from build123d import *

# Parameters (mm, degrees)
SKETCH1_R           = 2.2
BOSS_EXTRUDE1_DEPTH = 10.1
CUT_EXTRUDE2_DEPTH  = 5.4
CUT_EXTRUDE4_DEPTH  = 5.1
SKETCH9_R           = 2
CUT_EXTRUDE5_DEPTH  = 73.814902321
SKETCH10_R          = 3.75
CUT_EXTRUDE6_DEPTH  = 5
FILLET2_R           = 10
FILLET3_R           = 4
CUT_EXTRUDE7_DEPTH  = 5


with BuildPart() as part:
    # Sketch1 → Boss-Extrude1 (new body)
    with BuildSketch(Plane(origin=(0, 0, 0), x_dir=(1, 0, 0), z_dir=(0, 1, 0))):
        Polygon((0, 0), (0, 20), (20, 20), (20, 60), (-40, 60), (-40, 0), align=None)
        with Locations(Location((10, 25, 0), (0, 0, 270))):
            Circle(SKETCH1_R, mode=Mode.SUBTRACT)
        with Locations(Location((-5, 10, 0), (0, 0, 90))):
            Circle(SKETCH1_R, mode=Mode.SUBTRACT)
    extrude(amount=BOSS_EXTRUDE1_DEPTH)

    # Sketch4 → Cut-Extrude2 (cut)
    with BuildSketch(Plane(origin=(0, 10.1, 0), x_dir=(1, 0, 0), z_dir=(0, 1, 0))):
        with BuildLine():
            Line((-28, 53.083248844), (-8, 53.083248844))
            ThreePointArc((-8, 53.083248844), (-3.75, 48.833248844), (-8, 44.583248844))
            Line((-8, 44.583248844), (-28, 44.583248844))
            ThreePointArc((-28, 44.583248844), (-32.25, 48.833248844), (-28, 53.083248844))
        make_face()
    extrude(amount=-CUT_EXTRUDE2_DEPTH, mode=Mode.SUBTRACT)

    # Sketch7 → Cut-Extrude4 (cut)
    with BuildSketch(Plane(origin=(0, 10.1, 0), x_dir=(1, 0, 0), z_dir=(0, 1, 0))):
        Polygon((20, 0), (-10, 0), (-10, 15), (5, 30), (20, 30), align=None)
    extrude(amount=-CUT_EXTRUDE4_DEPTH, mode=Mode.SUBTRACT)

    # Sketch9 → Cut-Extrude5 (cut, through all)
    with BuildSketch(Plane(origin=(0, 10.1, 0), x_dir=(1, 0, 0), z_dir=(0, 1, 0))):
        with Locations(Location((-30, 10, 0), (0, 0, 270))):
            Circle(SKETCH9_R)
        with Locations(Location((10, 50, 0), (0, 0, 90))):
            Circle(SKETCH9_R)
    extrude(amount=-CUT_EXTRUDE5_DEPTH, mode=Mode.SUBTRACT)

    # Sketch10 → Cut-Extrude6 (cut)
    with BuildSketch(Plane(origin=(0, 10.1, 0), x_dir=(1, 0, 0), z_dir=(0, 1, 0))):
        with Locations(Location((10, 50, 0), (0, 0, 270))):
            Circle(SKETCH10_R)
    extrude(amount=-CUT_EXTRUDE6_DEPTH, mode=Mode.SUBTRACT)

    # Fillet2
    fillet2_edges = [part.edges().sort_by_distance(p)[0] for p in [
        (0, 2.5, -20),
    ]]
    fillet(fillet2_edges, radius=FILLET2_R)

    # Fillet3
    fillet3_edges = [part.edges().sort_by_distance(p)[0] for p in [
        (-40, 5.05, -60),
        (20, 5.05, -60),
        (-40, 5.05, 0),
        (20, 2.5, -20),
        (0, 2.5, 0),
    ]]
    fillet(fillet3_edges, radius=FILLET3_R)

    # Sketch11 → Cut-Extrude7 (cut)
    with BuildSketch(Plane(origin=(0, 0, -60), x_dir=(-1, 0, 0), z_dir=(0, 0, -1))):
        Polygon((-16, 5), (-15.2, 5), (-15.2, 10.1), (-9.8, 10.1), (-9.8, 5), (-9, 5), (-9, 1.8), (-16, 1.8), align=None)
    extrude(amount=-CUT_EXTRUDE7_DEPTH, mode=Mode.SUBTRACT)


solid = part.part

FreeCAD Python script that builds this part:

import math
import FreeCAD as App
import Part
import Sketcher
from FreeCAD import Vector
Q = App.Units.Quantity


def edges_at(feature, points):
    """Names of the edges that pass closest to the given points."""
    edges = feature.Shape.Edges
    near = lambda p: min(range(len(edges)), key=lambda i: edges[i].distToShape(Part.Vertex(*p))[0])
    return sorted({f"Edge{near(p) + 1}" for p in points})


def add_polygon(sketch, points):
    """Adds a closed chain of lines whose ends are joined by coincident constraints."""
    first, n = sketch.GeometryCount, len(points)
    for a, b in zip(points, points[1:] + points[:1]):
        sketch.addGeometry(Part.LineSegment(App.Vector(*a, 0), App.Vector(*b, 0)), False)
    for i in range(n):
        sketch.addConstraint(Sketcher.Constraint("Coincident", first + i, 2, first + (i + 1) % n, 1))

doc = App.newDocument("Part")
body = doc.addObject("PartDesign::Body", "Body")

sketch1 = doc.addObject("Sketcher::SketchObject", "Sketch")
body.addObject(sketch1)
sketch1.AttachmentSupport = (doc.XZ_Plane, [""])
sketch1.MapMode = "FlatFace"
add_polygon(sketch1, [(0, 0), (0, -20), (20, -20), (20, -60), (-40, -60), (-40, 0)])
sketch1.addGeometry(Part.Circle(Vector(-5, -10, 0), Vector(0, 0, 1), 2.2), False)
sketch1.addGeometry(Part.Circle(Vector(10, -25, 0), Vector(0, 0, 1), 2.2), False)
sketch1.addConstraint(Sketcher.Constraint("Vertical", 0))
sketch1.addConstraint(Sketcher.Constraint("Horizontal", 1))
sketch1.addConstraint(Sketcher.Constraint("Vertical", 2))
sketch1.addConstraint(Sketcher.Constraint("Horizontal", 3))
sketch1.addConstraint(Sketcher.Constraint("Vertical", 4))
sketch1.addConstraint(Sketcher.Constraint("Horizontal", 5))
sketch1.addConstraint(Sketcher.Constraint("Coincident", 5, 2, -1, 1))
sketch1.addConstraint(Sketcher.Constraint("Equal", 6, 7))
sketch1.addConstraint(Sketcher.Constraint("Equal", 1, 0))
sketch1.addConstraint(Sketcher.Constraint("Equal", 5, 2))
sketch1.addConstraint(Sketcher.Constraint("Diameter", 6, Q("4.4 mm")))
sketch1.addConstraint(Sketcher.Constraint("DistanceX", 1, 1, 1, 2, Q("20 mm")))
sketch1.addConstraint(Sketcher.Constraint("DistanceX", 3, 2, 3, 1, Q("60 mm")))
sketch1.addConstraint(Sketcher.Constraint("DistanceX", 6, 3, -1, 1, Q("5 mm")))
sketch1.addConstraint(Sketcher.Constraint("DistanceY", 6, 3, -1, 1, Q("10 mm")))
sketch1.addConstraint(Sketcher.Constraint("DistanceX", -1, 1, 7, 3, Q("10 mm")))
sketch1.addConstraint(Sketcher.Constraint("DistanceY", 7, 3, -1, 1, Q("25 mm")))
pad1 = doc.addObject("PartDesign::Pad", "Pad")
body.addObject(pad1)
pad1.Profile = sketch1
pad1.Length = 10.1
pad1.Reversed = True

sketch2 = doc.addObject("Sketcher::SketchObject", "Sketch001")
body.addObject(sketch2)
sketch2.AttachmentSupport = (doc.XZ_Plane, [""])
sketch2.MapMode = "FlatFace"
sketch2.AttachmentOffset = App.Placement(Vector(0, 0, -10.1), App.Rotation())
sketch2.addGeometry(Part.LineSegment(Vector(-8, -53.1, 0), Vector(-28, -53.1, 0)), False)
sketch2.addGeometry(Part.ArcOfCircle(Part.Circle(Vector(-28, -48.8, 0), Vector(0, 0, 1), 4.2), math.radians(90), math.radians(270)), False)
sketch2.addGeometry(Part.LineSegment(Vector(-28, -44.6, 0), Vector(-8, -44.6, 0)), False)
sketch2.addGeometry(Part.ArcOfCircle(Part.Circle(Vector(-8, -48.8, 0), Vector(0, 0, 1), 4.2), math.radians(-90), math.radians(90)), False)
sketch2.addConstraint(Sketcher.Constraint("Tangent", 0, 2, 1, 2))
sketch2.addConstraint(Sketcher.Constraint("Tangent", 1, 1, 2, 1))
sketch2.addConstraint(Sketcher.Constraint("Tangent", 2, 2, 3, 2))
sketch2.addConstraint(Sketcher.Constraint("Tangent", 3, 1, 0, 1))
sketch2.addConstraint(Sketcher.Constraint("Horizontal", 0))
sketch2.addConstraint(Sketcher.Constraint("Horizontal", 2))
sketch2.addConstraint(Sketcher.Constraint("DistanceX", 0, 2, 0, 1, Q("20 mm")))
sketch2.addConstraint(Sketcher.Constraint("Radius", 1, Q("4.25 mm")))
sketch2.addConstraint(Sketcher.Constraint("DistanceX", 1, 3, -1, 1, Q("28 mm")))
sketch2.addConstraint(Sketcher.Constraint("DistanceY", 1, 3, -1, 1, Q("48.833249 mm")))
pocket1 = doc.addObject("PartDesign::Pocket", "Pocket")
body.addObject(pocket1)
pocket1.Profile = sketch2
pocket1.Length = 5.4
pocket1.Reversed = True

sketch3 = doc.addObject("Sketcher::SketchObject", "Sketch002")
body.addObject(sketch3)
sketch3.AttachmentSupport = (doc.XZ_Plane, [""])
sketch3.MapMode = "FlatFace"
sketch3.AttachmentOffset = App.Placement(Vector(0, 0, -10.1), App.Rotation())
add_polygon(sketch3, [(-10, 0), (20, 0), (20, -30), (5, -30), (-10, -15)])
sketch3.addConstraint(Sketcher.Constraint("Horizontal", 0))
sketch3.addConstraint(Sketcher.Constraint("Vertical", 1))
sketch3.addConstraint(Sketcher.Constraint("Horizontal", 2))
sketch3.addConstraint(Sketcher.Constraint("Vertical", 4))
sketch3.addConstraint(Sketcher.Constraint("PointOnObject", 0, 2, -1))
sketch3.addConstraint(Sketcher.Constraint("Equal", 0, 1))
sketch3.addConstraint(Sketcher.Constraint("Equal", 2, 4))
sketch3.addConstraint(Sketcher.Constraint("DistanceX", 0, 1, 0, 2, Q("30 mm")))
sketch3.addConstraint(Sketcher.Constraint("DistanceX", 2, 2, 2, 1, Q("15 mm")))
sketch3.addConstraint(Sketcher.Constraint("DistanceX", -1, 1, 0, 2, Q("20 mm")))
pocket2 = doc.addObject("PartDesign::Pocket", "Pocket001")
body.addObject(pocket2)
pocket2.Profile = sketch3
pocket2.Length = 5.1
pocket2.Reversed = True

sketch4 = doc.addObject("Sketcher::SketchObject", "Sketch003")
body.addObject(sketch4)
sketch4.AttachmentSupport = (doc.XZ_Plane, [""])
sketch4.MapMode = "FlatFace"
sketch4.AttachmentOffset = App.Placement(Vector(0, 0, -10.1), App.Rotation())
sketch4.addGeometry(Part.Circle(Vector(-30, -10, 0), Vector(0, 0, 1), 2), False)
sketch4.addGeometry(Part.Circle(Vector(10, -50, 0), Vector(0, 0, 1), 2), False)
sketch4.addConstraint(Sketcher.Constraint("Equal", 0, 1))
sketch4.addConstraint(Sketcher.Constraint("Diameter", 0, Q("4 mm")))
sketch4.addConstraint(Sketcher.Constraint("DistanceX", 0, 3, -1, 1, Q("30 mm")))
sketch4.addConstraint(Sketcher.Constraint("DistanceY", 0, 3, -1, 1, Q("10 mm")))
sketch4.addConstraint(Sketcher.Constraint("DistanceX", -1, 1, 1, 3, Q("10 mm")))
sketch4.addConstraint(Sketcher.Constraint("DistanceY", 1, 3, -1, 1, Q("50 mm")))
pocket3 = doc.addObject("PartDesign::Pocket", "Pocket002")
body.addObject(pocket3)
pocket3.Profile = sketch4
pocket3.Type = "ThroughAll"
pocket3.Reversed = True

sketch5 = doc.addObject("Sketcher::SketchObject", "Sketch004")
body.addObject(sketch5)
sketch5.AttachmentSupport = (doc.XZ_Plane, [""])
sketch5.MapMode = "FlatFace"
sketch5.AttachmentOffset = App.Placement(Vector(0, 0, -10.1), App.Rotation())
sketch5.addGeometry(Part.Circle(Vector(10, -50, 0), Vector(0, 0, 1), 3.8), False)
sketch5.addConstraint(Sketcher.Constraint("Diameter", 0, Q("7.5 mm")))
sketch5.addConstraint(Sketcher.Constraint("DistanceX", -1, 1, 0, 3, Q("10 mm")))
sketch5.addConstraint(Sketcher.Constraint("DistanceY", 0, 3, -1, 1, Q("50 mm")))
pocket4 = doc.addObject("PartDesign::Pocket", "Pocket003")
body.addObject(pocket4)
pocket4.Profile = sketch5
pocket4.Length = 5
pocket4.Reversed = True
doc.recompute()

fillet = doc.addObject("PartDesign::Fillet", "Fillet")
body.addObject(fillet)
fillet.Base = (pocket4, edges_at(pocket4, [(0, 2.5, -20)]))
fillet.Radius = 10
doc.recompute()

fillet2 = doc.addObject("PartDesign::Fillet", "Fillet001")
body.addObject(fillet2)
fillet2.Base = (fillet, edges_at(fillet, [
    (-40, 5.05, -60),
    (20, 5.05, -60),
    (-40, 5.05, 0),
    (20, 2.5, -20),
    (0, 2.5, 0),
]))
fillet2.Radius = 4

sketch6 = doc.addObject("Sketcher::SketchObject", "Sketch005")
body.addObject(sketch6)
sketch6.AttachmentSupport = (doc.XY_Plane, [""])
sketch6.MapMode = "FlatFace"
sketch6.AttachmentOffset = App.Placement(Vector(0, 0, -60), App.Rotation())
add_polygon(sketch6, [(15.2, 5), (16, 5), (16, 1.8), (9, 1.8), (9, 5), (9.8, 5), (9.8, 10.1), (15.2, 10.1)])
sketch6.addConstraint(Sketcher.Constraint("Horizontal", 0))
sketch6.addConstraint(Sketcher.Constraint("Vertical", 1))
sketch6.addConstraint(Sketcher.Constraint("Horizontal", 2))
sketch6.addConstraint(Sketcher.Constraint("Vertical", 3))
sketch6.addConstraint(Sketcher.Constraint("Horizontal", 4))
sketch6.addConstraint(Sketcher.Constraint("Vertical", 5))
sketch6.addConstraint(Sketcher.Constraint("Horizontal", 6))
sketch6.addConstraint(Sketcher.Constraint("Vertical", 7))
sketch6.addConstraint(Sketcher.Constraint("Horizontal", 0, 2, 3, 2))
sketch6.addConstraint(Sketcher.Constraint("Equal", 0, 4))
sketch6.addConstraint(Sketcher.Constraint("DistanceX", 2, 2, 2, 1, Q("7 mm")))
sketch6.addConstraint(Sketcher.Constraint("DistanceX", 0, 1, 0, 2, Q("0.8 mm")))
sketch6.addConstraint(Sketcher.Constraint("DistanceY", 1, 2, 1, 1, Q("3.2 mm")))
sketch6.addConstraint(Sketcher.Constraint("DistanceY", 5, 1, 5, 2, Q("5.1 mm")))
sketch6.addConstraint(Sketcher.Constraint("DistanceX", -1, 1, 0, 2, Q("16 mm")))
sketch6.addConstraint(Sketcher.Constraint("DistanceY", -1, 1, 0, 2, Q("5 mm")))
pocket5 = doc.addObject("PartDesign::Pocket", "Pocket004")
body.addObject(pocket5)
pocket5.Profile = sketch6
pocket5.Length = 5
pocket5.Reversed = True

doc.recompute()
